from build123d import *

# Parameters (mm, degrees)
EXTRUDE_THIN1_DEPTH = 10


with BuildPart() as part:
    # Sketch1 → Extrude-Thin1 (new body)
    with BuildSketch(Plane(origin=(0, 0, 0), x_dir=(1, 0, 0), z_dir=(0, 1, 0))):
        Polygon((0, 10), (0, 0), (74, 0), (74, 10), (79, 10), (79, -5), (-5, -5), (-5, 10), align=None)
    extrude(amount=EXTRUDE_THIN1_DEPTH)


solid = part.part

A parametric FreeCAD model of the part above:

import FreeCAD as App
import Part
import Sketcher


def add_polygon(sketch, points):
    """Adds a closed chain of lines whose ends are joined by coincident constraints."""
    first, n = sketch.GeometryCount, len(points)
    for a, b in zip(points, points[1:] + points[:1]):
        sketch.addGeometry(Part.LineSegment(App.Vector(*a, 0), App.Vector(*b, 0)), False)
    for i in range(n):
        sketch.addConstraint(Sketcher.Constraint("Coincident", first + i, 2, first + (i + 1) % n, 1))

doc = App.newDocument("Part")
body = doc.addObject("PartDesign::Body", "Body")

# Sketch on XZ plane
sketch1 = body.newObject("Sketcher::SketchObject", "Sketch")
sketch1.AttachmentSupport = (doc.getObject("XZ_Plane"), [""])
sketch1.MapMode = "FlatFace"
add_polygon(sketch1, [(0, 0), (0, -10), (-5, -10), (-5, 5), (79, 5), (79, -10), (74, -10), (74, 0)])  # lines 0-7
sketch1.addConstraint([
    Sketcher.Constraint("Vertical", 0),
    Sketcher.Constraint("Horizontal", 1),
    Sketcher.Constraint("Vertical", 2),
    Sketcher.Constraint("Horizontal", 3),
    Sketcher.Constraint("Vertical", 4),
    Sketcher.Constraint("Horizontal", 5),
    Sketcher.Constraint("Vertical", 6),
    Sketcher.Constraint("Horizontal", 7),
    Sketcher.Constraint("Coincident", 7, 2, -1, 1),
    Sketcher.Constraint("Horizontal", 1, 2, 4, 2),
    Sketcher.Constraint("Equal", 1, 5),
    Sketcher.Constraint("DistanceX", 1, 2, 1, 1, 5.0),
    Sketcher.Constraint("DistanceX", 3, 1, 3, 2, 84.0),
    Sketcher.Constraint("DistanceY", 0, 2, 0, 1, 10.0),
    Sketcher.Constraint("DistanceY", 2, 1, 2, 2, 15.0),
])
pad1 = body.newObject("PartDesign::Pad", "Pad")
pad1.Profile = sketch1
pad1.Length = 10
pad1.Reversed = True

doc.recompute()
